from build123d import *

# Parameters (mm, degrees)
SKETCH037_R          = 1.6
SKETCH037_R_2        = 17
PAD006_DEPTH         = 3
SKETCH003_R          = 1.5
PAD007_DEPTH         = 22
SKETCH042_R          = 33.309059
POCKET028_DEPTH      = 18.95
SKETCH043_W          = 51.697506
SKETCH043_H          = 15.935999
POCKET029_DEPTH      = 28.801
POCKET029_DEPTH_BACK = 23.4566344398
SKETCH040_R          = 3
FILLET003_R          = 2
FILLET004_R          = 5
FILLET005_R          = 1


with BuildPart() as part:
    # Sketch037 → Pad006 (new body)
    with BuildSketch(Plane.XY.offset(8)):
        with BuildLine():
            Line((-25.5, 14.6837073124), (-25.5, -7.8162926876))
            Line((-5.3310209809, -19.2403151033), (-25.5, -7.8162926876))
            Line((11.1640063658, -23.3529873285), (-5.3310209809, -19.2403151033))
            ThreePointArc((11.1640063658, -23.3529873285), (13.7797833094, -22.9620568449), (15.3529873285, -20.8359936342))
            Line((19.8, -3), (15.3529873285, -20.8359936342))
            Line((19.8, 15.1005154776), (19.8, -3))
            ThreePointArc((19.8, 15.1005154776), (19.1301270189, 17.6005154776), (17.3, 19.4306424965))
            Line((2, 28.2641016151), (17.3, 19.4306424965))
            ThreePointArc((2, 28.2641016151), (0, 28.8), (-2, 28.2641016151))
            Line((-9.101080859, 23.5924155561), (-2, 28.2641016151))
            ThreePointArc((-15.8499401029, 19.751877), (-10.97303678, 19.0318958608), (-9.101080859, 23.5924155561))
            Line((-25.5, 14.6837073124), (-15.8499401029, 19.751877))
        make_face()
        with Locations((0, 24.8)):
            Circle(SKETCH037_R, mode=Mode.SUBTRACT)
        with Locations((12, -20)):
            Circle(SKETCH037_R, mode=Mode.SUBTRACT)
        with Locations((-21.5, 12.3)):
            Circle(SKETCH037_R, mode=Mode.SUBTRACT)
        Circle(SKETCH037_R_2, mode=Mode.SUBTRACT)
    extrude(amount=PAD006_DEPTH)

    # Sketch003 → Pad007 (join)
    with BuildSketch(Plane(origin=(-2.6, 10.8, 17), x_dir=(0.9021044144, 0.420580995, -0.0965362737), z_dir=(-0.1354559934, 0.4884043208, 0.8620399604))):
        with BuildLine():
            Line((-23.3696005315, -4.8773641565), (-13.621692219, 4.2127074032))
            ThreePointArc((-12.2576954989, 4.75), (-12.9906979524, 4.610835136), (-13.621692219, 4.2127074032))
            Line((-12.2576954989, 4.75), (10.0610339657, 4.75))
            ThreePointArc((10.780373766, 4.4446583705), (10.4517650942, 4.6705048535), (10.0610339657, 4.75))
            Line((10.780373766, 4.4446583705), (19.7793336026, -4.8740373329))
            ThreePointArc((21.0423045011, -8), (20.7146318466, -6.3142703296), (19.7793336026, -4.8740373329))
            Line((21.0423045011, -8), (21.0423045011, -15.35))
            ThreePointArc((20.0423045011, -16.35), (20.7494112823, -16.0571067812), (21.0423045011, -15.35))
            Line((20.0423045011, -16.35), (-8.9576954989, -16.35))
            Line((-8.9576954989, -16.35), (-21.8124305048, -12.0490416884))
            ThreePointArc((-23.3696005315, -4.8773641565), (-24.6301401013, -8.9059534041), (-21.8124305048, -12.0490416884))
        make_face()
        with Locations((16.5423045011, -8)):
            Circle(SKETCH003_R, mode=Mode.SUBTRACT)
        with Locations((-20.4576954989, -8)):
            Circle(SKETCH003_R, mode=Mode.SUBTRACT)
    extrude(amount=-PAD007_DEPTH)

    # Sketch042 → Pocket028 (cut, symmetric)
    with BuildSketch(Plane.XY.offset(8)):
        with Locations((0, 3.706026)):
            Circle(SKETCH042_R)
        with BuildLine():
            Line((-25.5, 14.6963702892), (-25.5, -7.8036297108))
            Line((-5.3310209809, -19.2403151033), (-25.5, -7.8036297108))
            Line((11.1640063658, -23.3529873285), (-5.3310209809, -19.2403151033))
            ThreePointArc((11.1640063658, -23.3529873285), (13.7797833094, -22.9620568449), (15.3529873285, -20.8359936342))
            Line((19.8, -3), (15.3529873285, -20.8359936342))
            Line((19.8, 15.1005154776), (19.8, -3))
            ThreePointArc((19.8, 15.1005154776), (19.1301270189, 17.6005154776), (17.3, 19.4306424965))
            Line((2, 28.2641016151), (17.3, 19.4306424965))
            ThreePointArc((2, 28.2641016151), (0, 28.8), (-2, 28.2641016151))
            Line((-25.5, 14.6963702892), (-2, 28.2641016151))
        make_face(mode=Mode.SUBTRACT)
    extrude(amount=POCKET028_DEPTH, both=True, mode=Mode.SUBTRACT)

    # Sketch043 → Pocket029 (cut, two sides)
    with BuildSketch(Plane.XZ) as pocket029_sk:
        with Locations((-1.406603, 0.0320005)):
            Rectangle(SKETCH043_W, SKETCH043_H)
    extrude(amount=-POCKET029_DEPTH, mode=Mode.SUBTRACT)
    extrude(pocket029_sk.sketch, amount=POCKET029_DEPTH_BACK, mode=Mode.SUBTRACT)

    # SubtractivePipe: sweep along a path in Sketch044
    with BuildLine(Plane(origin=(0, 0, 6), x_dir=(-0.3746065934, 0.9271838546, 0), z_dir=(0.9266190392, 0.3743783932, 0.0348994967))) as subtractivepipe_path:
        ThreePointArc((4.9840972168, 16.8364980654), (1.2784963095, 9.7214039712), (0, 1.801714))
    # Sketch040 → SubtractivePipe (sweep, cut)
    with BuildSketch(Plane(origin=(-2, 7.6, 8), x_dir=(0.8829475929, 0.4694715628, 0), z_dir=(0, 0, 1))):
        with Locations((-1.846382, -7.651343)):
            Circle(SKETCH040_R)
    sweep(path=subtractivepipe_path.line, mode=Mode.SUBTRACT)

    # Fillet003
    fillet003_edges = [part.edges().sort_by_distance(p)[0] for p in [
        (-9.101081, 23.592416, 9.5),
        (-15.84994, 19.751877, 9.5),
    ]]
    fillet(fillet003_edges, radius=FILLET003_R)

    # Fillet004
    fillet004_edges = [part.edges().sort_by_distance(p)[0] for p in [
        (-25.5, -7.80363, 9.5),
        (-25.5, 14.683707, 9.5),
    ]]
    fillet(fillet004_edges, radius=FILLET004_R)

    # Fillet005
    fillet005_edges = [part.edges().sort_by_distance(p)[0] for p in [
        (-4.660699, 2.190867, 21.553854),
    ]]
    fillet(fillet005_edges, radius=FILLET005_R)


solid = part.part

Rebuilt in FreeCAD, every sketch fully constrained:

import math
import FreeCAD as App
import Part
import Sketcher

V = App.Vector
Q = App.Units.Quantity


def edges_at(feature, points):
    """Names of the edges that pass closest to the given points."""
    edges = feature.Shape.Edges
    near = lambda p: min(range(len(edges)), key=lambda i: edges[i].distToShape(Part.Vertex(*p))[0])
    return sorted({f"Edge{near(p) + 1}" for p in points})

doc = App.newDocument("Part")
params = doc.addObject("Spreadsheet::Sheet", "Params")
for row, (alias, value) in enumerate([
    ("sketch1_diameter", "34 mm"),
    ("sketch1_radius", "5 mm"),
    ("sketch1_radius2", "4 mm"),
    ("sketch1_diameter2", "3.2 mm"),
    ("sketch1_length", "17 mm"),
    ("pad1_length", "3 mm"),
    ("sketch2_diameter", "3 mm"),
    ("sketch2_radius", "1 mm"),
    ("sketch2_radius2", "2 mm"),
    ("sketch2_radius3", "4.5 mm"),
    ("sketch2_width", "29 mm"),
    ("pad2_length", "22 mm"),
    ("sketch3_radius", "4 mm"),
    ("sketch3_radius2", "5 mm"),
    ("sketch3_length", "17 mm"),
    ("sketch3_height", "22.5 mm"),
    ("pocket1_length", "37.9 mm"),
    ("sketch5_diameter", "6 mm"),
    ("fillet_radius", "2 mm"),
    ("fillet2_radius", "5 mm"),
    ("fillet3_radius", "1 mm"),
], start=1):
    params.set(f"A{row}", alias)
    params.set(f"B{row}", "=" + value)
    params.setAlias(f"B{row}", alias)

body = doc.addObject("PartDesign::Body", "Body")

# Sketch on XY plane
sketch1 = body.newObject("Sketcher::SketchObject", "Sketch")
sketch1.AttachmentSupport = (doc.getObject("XY_Plane"), [""])
sketch1.MapMode = "FlatFace"
sketch1.AttachmentOffset = App.Placement(V(0, 0, 8), App.Rotation())
sketch1.addGeometry(Part.LineSegment(V(-25.5, 14.7, 0), V(-25.5, -7.8, 0)), False)
sketch1.addGeometry(Part.LineSegment(V(-25.5, -7.8, 0), V(-5.3, -19.2, 0)), False)
sketch1.addGeometry(Part.LineSegment(V(-5.3, -19.2, 0), V(11.2, -23.4, 0)), False)
sketch1.addGeometry(Part.ArcOfCircle(Part.Circle(V(12, -20, 0), V(0, 0, 1), 3.5), math.radians(-104), math.radians(-14)), False)
sketch1.addGeometry(Part.LineSegment(V(15.4, -20.8, 0), V(19.8, -3, 0)), False)
sketch1.addGeometry(Part.LineSegment(V(19.8, -3, 0), V(19.8, 15.1, 0)), False)
sketch1.addGeometry(Part.ArcOfCircle(Part.Circle(V(14.8, 15.1, 0), V(0, 0, 1), 5), math.radians(0), math.radians(60)), False)
sketch1.addGeometry(Part.LineSegment(V(17.3, 19.4, 0), V(2, 28.3, 0)), False)
sketch1.addGeometry(Part.ArcOfCircle(Part.Circle(V(0, 24.8, 0), V(0, 0, 1), 4), math.radians(60), math.radians(120)), False)
sketch1.addGeometry(Part.LineSegment(V(-2, 28.3, 0), V(-9.1, 23.6, 0)), False)
sketch1.addGeometry(Part.ArcOfCircle(Part.Circle(V(-13, 22.5, 0), V(0, 0, 1), 4), math.radians(-136), math.radians(16)), False)
sketch1.addGeometry(Part.LineSegment(V(-15.8, 19.8, 0), V(-25.5, 14.7, 0)), False)
sketch1.addGeometry(Part.Circle(V(12, -20, 0), V(0, 0, 1), 1.6), False)
sketch1.addGeometry(Part.Circle(V(0, 0, 0), V(0, 0, 1), 17), False)
sketch1.addGeometry(Part.Circle(V(-21.5, 12.3, 0), V(0, 0, 1), 1.6), False)
sketch1.addGeometry(Part.Circle(V(0, 24.8, 0), V(0, 0, 1), 1.6), False)
sketch1.addConstraint(Sketcher.Constraint("Coincident", 0, 2, 1, 1))
sketch1.addConstraint(Sketcher.Constraint("Coincident", 1, 2, 2, 1))
sketch1.addConstraint(Sketcher.Constraint("Tangent", 2, 2, 3, 1))
sketch1.addConstraint(Sketcher.Constraint("Tangent", 3, 2, 4, 1))
sketch1.addConstraint(Sketcher.Constraint("Coincident", 4, 2, 5, 1))
sketch1.addConstraint(Sketcher.Constraint("Tangent", 5, 2, 6, 1))
sketch1.addConstraint(Sketcher.Constraint("Tangent", 6, 2, 7, 1))
sketch1.addConstraint(Sketcher.Constraint("Tangent", 7, 2, 8, 1))
sketch1.addConstraint(Sketcher.Constraint("Coincident", 8, 2, 9, 1))
sketch1.addConstraint(Sketcher.Constraint("Coincident", 9, 2, 10, 2))
sketch1.addConstraint(Sketcher.Constraint("Coincident", 10, 1, 11, 1))
sketch1.addConstraint(Sketcher.Constraint("Coincident", 11, 2, 0, 1))
sketch1.addConstraint(Sketcher.Constraint("Vertical", 0))
sketch1.addConstraint(Sketcher.Constraint("Vertical", 5))
sketch1.addConstraint(Sketcher.Constraint("Coincident", 13, 3, -1, 1))
sketch1.addConstraint(Sketcher.Constraint("Coincident", 12, 3, 3, 3))
sketch1.addConstraint(Sketcher.Constraint("Coincident", 15, 3, 8, 3))
sketch1.addConstraint(Sketcher.Constraint("Equal", 8, 10))
sketch1.addConstraint(Sketcher.Constraint("Equal", 12, 14))
sketch1.addConstraint(Sketcher.Constraint("Equal", 14, 15))
sketch1.addConstraint(Sketcher.Constraint("Symmetric", 7, 2, 8, 2, -2))
sketch1.addConstraint(Sketcher.Constraint("Perpendicular", 2, 4))
sketch1.addConstraint(Sketcher.Constraint("Diameter", 13, Q("34 mm")))
sketch1.addConstraint(Sketcher.Constraint("Radius", 6, Q("5 mm")))
sketch1.addConstraint(Sketcher.Constraint("Radius", 8, Q("4 mm")))
sketch1.addConstraint(Sketcher.Constraint("Diameter", 12, Q("3.2 mm")))
sketch1.addConstraint(Sketcher.Constraint("Angle", 2, Q("-14 deg")))
sketch1.addConstraint(Sketcher.Constraint("Angle", 7, Q("150 deg")))
sketch1.addConstraint(Sketcher.Constraint("Distance", 2, Q("17 mm")))
sketch1.addConstraint(Sketcher.Constraint("DistanceY", 0, 2, 0, 1, Q("22.5 mm")))
sketch1.addConstraint(Sketcher.Constraint("DistanceX", -1, 1, 3, 3, Q("12 mm")))
sketch1.addConstraint(Sketcher.Constraint("DistanceY", 3, 3, -1, 1, Q("20 mm")))
sketch1.addConstraint(Sketcher.Constraint("DistanceY", 4, 2, -1, 1, Q("3 mm")))
sketch1.addConstraint(Sketcher.Constraint("DistanceX", 0, 2, 14, 3, Q("4 mm")))
sketch1.addConstraint(Sketcher.Constraint("Distance", 9, Q("8.5 mm")))
sketch1.addConstraint(Sketcher.Constraint("Distance", 11, Q("10.9 mm")))
sketch1.addConstraint(Sketcher.Constraint("DistanceX", -1, 1, 6, 3, Q("14.8 mm")))
sketch1.addConstraint(Sketcher.Constraint("DistanceY", -1, 1, 8, 3, Q("24.8 mm")))
sketch1.addConstraint(Sketcher.Constraint("DistanceX", 14, 3, -1, 1, Q("21.5 mm")))
sketch1.addConstraint(Sketcher.Constraint("DistanceY", -1, 1, 14, 3, Q("12.3 mm")))
sketch1.addConstraint(Sketcher.Constraint("DistanceY", 10, 3, 7, 2, Q("5.755699 mm")))
sketch1.addConstraint(Sketcher.Constraint("DistanceX", 9, 2, -1, 1, Q("9.101081 mm")))
sketch1.addConstraint(Sketcher.Constraint("DistanceX", 10, 1, -1, 1, Q("15.84994 mm")))
sketch1.setExpression("Constraints[22]", "Params.sketch1_diameter")
sketch1.setExpression("Constraints[23]", "Params.sketch1_radius")
sketch1.setExpression("Constraints[24]", "Params.sketch1_radius2")
sketch1.setExpression("Constraints[25]", "Params.sketch1_diameter2")
sketch1.setExpression("Constraints[28]", "Params.sketch1_length")
pad1 = body.newObject("PartDesign::Pad", "Pad")
pad1.Profile = sketch1
pad1.setExpression("Length", "Params.pad1_length")

# Sketch on an angled plane
sketch2 = body.newObject("Sketcher::SketchObject", "Sketch001")
sketch2.Placement = App.Placement(V(-2.6, 10.8, 17), App.Rotation(V(0.902104414, 0.420580995, -0.096536274), V(-0.409706357, 0.764573636, -0.49756191), V(-0.135455993, 0.488404321, 0.86203996), "ZXY"))
sketch2.addGeometry(Part.LineSegment(V(-13.6, 4.2, 0), V(-23.4, -4.9, 0)), False)
sketch2.addGeometry(Part.ArcOfCircle(Part.Circle(V(-20.5, -8, 0), V(0, 0, 1), 4.3), math.radians(133), math.radians(252)), False)
sketch2.addGeometry(Part.LineSegment(V(-21.8, -12, 0), V(-9, -16.3, 0)), False)
sketch2.addGeometry(Part.LineSegment(V(-9, -16.3, 0), V(20, -16.3, 0)), False)
sketch2.addGeometry(Part.ArcOfCircle(Part.Circle(V(20, -15.3, 0), V(0, 0, 1), 1), math.radians(-90), math.radians(0)), False)
sketch2.addGeometry(Part.LineSegment(V(21, -15.3, 0), V(21, -8, 0)), False)
sketch2.addGeometry(Part.ArcOfCircle(Part.Circle(V(16.5, -8, 0), V(0, 0, 1), 4.5), math.radians(0), math.radians(44)), False)
sketch2.addGeometry(Part.LineSegment(V(19.8, -4.9, 0), V(10.8, 4.4, 0)), False)
sketch2.addGeometry(Part.ArcOfCircle(Part.Circle(V(10.1, 3.7, 0), V(0, 0, 1), 1), math.radians(44), math.radians(90)), False)
sketch2.addGeometry(Part.LineSegment(V(10.1, 4.7, 0), V(-12.3, 4.7, 0)), False)
sketch2.addGeometry(Part.ArcOfCircle(Part.Circle(V(-12.3, 2.7, 0), V(0, 0, 1), 2), math.radians(90), math.radians(133)), False)
sketch2.addGeometry(Part.Circle(V(16.5, -8, 0), V(0, 0, 1), 1.5), False)
sketch2.addGeometry(Part.Circle(V(-20.5, -8, 0), V(0, 0, 1), 1.5), False)
sketch2.addConstraint(Sketcher.Constraint("Tangent", 0, 2, 1, 1))
sketch2.addConstraint(Sketcher.Constraint("Tangent", 1, 2, 2, 1))
sketch2.addConstraint(Sketcher.Constraint("Coincident", 2, 2, 3, 1))
sketch2.addConstraint(Sketcher.Constraint("Tangent", 3, 2, 4, 1))
sketch2.addConstraint(Sketcher.Constraint("Tangent", 4, 2, 5, 1))
sketch2.addConstraint(Sketcher.Constraint("Tangent", 5, 2, 6, 1))
sketch2.addConstraint(Sketcher.Constraint("Tangent", 6, 2, 7, 1))
sketch2.addConstraint(Sketcher.Constraint("Tangent", 7, 2, 8, 1))
sketch2.addConstraint(Sketcher.Constraint("Tangent", 8, 2, 9, 1))
sketch2.addConstraint(Sketcher.Constraint("Tangent", 9, 2, 10, 1))
sketch2.addConstraint(Sketcher.Constraint("Tangent", 10, 2, 0, 1))
sketch2.addConstraint(Sketcher.Constraint("Horizontal", 3))
sketch2.addConstraint(Sketcher.Constraint("Vertical", 5))
sketch2.addConstraint(Sketcher.Constraint("Horizontal", 9))
sketch2.addConstraint(Sketcher.Constraint("Coincident", 11, 3, 6, 3))
sketch2.addConstraint(Sketcher.Constraint("Coincident", 12, 3, 1, 3))
sketch2.addConstraint(Sketcher.Constraint("Equal", 4, 8))
sketch2.addConstraint(Sketcher.Constraint("Equal", 11, 12))
sketch2.addConstraint(Sketcher.Constraint("Horizontal", 1, 3, 6, 3))
sketch2.addConstraint(Sketcher.Constraint("Diameter", 11, Q("3 mm")))
sketch2.addConstraint(Sketcher.Constraint("Radius", 4, Q("1 mm")))
sketch2.addConstraint(Sketcher.Constraint("Radius", 10, Q("2 mm")))
sketch2.addConstraint(Sketcher.Constraint("Radius", 6, Q("4.5 mm")))
sketch2.addConstraint(Sketcher.Constraint("DistanceX", 3, 1, 3, 2, Q("29 mm")))
sketch2.addConstraint(Sketcher.Constraint("Angle", 0, Q("-137 deg")))
sketch2.addConstraint(Sketcher.Constraint("Angle", 7, Q("134 deg")))
sketch2.addConstraint(Sketcher.Constraint("DistanceY", 1, 3, -1, 1, Q("8 mm")))
sketch2.addConstraint(Sketcher.Constraint("DistanceX", 1, 3, 6, 3, Q("37 mm")))
sketch2.addConstraint(Sketcher.Constraint("DistanceY", 5, 1, 5, 2, Q("7.35 mm")))
sketch2.addConstraint(Sketcher.Constraint("DistanceY", 4, 3, 8, 3, Q("19.1 mm")))
sketch2.addConstraint(Sketcher.Constraint("DistanceX", 1, 3, 10, 3, Q("8.2 mm")))
sketch2.addConstraint(Sketcher.Constraint("DistanceX", 0, 2, -1, 1, Q("23.369601 mm")))
sketch2.setExpression("Constraints[19]", "Params.sketch2_diameter")
sketch2.setExpression("Constraints[20]", "Params.sketch2_radius")
sketch2.setExpression("Constraints[21]", "Params.sketch2_radius2")
sketch2.setExpression("Constraints[22]", "Params.sketch2_radius3")
sketch2.setExpression("Constraints[23]", "Params.sketch2_width")
pad2 = body.newObject("PartDesign::Pad", "Pad001")
pad2.Profile = sketch2
pad2.setExpression("Length", "Params.pad2_length")
pad2.Reversed = True

# Sketch on XY plane
sketch3 = body.newObject("Sketcher::SketchObject", "Sketch002")
sketch3.AttachmentSupport = (doc.getObject("XY_Plane"), [""])
sketch3.MapMode = "FlatFace"
sketch3.AttachmentOffset = App.Placement(V(0, 0, 8), App.Rotation())
sketch3.addGeometry(Part.Circle(V(0, 3.7, 0), V(0, 0, 1), 33.3), False)
sketch3.addGeometry(Part.LineSegment(V(-25.5, -7.8, 0), V(-25.5, 14.7, 0)), False)
sketch3.addGeometry(Part.LineSegment(V(-25.5, 14.7, 0), V(-2, 28.3, 0)), False)
sketch3.addGeometry(Part.ArcOfCircle(Part.Circle(V(0, 24.8, 0), V(0, 0, 1), 4), math.radians(60), math.radians(120)), False)
sketch3.addGeometry(Part.LineSegment(V(2, 28.3, 0), V(17.3, 19.4, 0)), False)
sketch3.addGeometry(Part.ArcOfCircle(Part.Circle(V(14.8, 15.1, 0), V(0, 0, 1), 5), math.radians(0), math.radians(60)), False)
sketch3.addGeometry(Part.LineSegment(V(19.8, 15.1, 0), V(19.8, -3, 0)), False)
sketch3.addGeometry(Part.LineSegment(V(19.8, -3, 0), V(15.4, -20.8, 0)), False)
sketch3.addGeometry(Part.ArcOfCircle(Part.Circle(V(12, -20, 0), V(0, 0, 1), 3.5), math.radians(-104), math.radians(-14)), False)
sketch3.addGeometry(Part.LineSegment(V(11.2, -23.4, 0), V(-5.3, -19.2, 0)), False)
sketch3.addGeometry(Part.LineSegment(V(-5.3, -19.2, 0), V(-25.5, -7.8, 0)), False)
sketch3.addConstraint(Sketcher.Constraint("Coincident", 1, 2, 2, 1))
sketch3.addConstraint(Sketcher.Constraint("Tangent", 2, 2, 3, 2))
sketch3.addConstraint(Sketcher.Constraint("Tangent", 3, 1, 4, 1))
sketch3.addConstraint(Sketcher.Constraint("Tangent", 4, 2, 5, 2))
sketch3.addConstraint(Sketcher.Constraint("Tangent", 5, 1, 6, 1))
sketch3.addConstraint(Sketcher.Constraint("Coincident", 6, 2, 7, 1))
sketch3.addConstraint(Sketcher.Constraint("Tangent", 7, 2, 8, 2))
sketch3.addConstraint(Sketcher.Constraint("Tangent", 8, 1, 9, 1))
sketch3.addConstraint(Sketcher.Constraint("Coincident", 9, 2, 10, 1))
sketch3.addConstraint(Sketcher.Constraint("Coincident", 10, 2, 1, 1))
sketch3.addConstraint(Sketcher.Constraint("Vertical", 1))
sketch3.addConstraint(Sketcher.Constraint("Vertical", 6))
sketch3.addConstraint(Sketcher.Constraint("Symmetric", 2, 2, 3, 1, -2))
sketch3.addConstraint(Sketcher.Constraint("PointOnObject", 0, 3, -2))
sketch3.addConstraint(Sketcher.Constraint("Perpendicular", 7, 9))
sketch3.addConstraint(Sketcher.Constraint("Radius", 3, Q("4 mm")))
sketch3.addConstraint(Sketcher.Constraint("Radius", 5, Q("5 mm")))
sketch3.addConstraint(Sketcher.Constraint("Angle", 2, Q("30 deg")))
sketch3.addConstraint(Sketcher.Constraint("Angle", 7, Q("-104 deg")))
sketch3.addConstraint(Sketcher.Constraint("Distance", 9, Q("17 mm")))
sketch3.addConstraint(Sketcher.Constraint("DistanceY", 1, 1, 1, 2, Q("22.5 mm")))
sketch3.addConstraint(Sketcher.Constraint("DistanceX", -1, 1, 8, 3, Q("12 mm")))
sketch3.addConstraint(Sketcher.Constraint("DistanceY", 8, 3, -1, 1, Q("20 mm")))
sketch3.addConstraint(Sketcher.Constraint("DistanceY", 6, 2, -1, 1, Q("3 mm")))
sketch3.addConstraint(Sketcher.Constraint("DistanceY", -1, 1, 3, 3, Q("24.8 mm")))
sketch3.addConstraint(Sketcher.Constraint("DistanceX", -1, 1, 5, 3, Q("14.8 mm")))
sketch3.addConstraint(Sketcher.Constraint("DistanceX", 1, 2, -1, 1, Q("25.5 mm")))
sketch3.addConstraint(Sketcher.Constraint("Diameter", 0, Q("66.618118 mm")))
sketch3.addConstraint(Sketcher.Constraint("DistanceY", 0, 3, 5, 3, Q("11.394489 mm")))
sketch3.setExpression("Constraints[15]", "Params.sketch3_radius")
sketch3.setExpression("Constraints[16]", "Params.sketch3_radius2")
sketch3.setExpression("Constraints[19]", "Params.sketch3_length")
sketch3.setExpression("Constraints[20]", "Params.sketch3_height")
pocket1 = body.newObject("PartDesign::Pocket", "Pocket")
pocket1.Profile = sketch3
pocket1.setExpression("Length", "Params.pocket1_length")
pocket1.Midplane = True

# Sketch on XZ plane
sketch4 = body.newObject("Sketcher::SketchObject", "Sketch003")
sketch4.AttachmentSupport = (doc.getObject("XZ_Plane"), [""])
sketch4.MapMode = "FlatFace"
sketch4.addGeometry(Part.LineSegment(V(-27, 8, 0), V(-27, -8, 0)), False)
sketch4.addGeometry(Part.LineSegment(V(-27, -8, 0), V(24, -8, 0)), False)
sketch4.addGeometry(Part.LineSegment(V(24, -8, 0), V(24, 8, 0)), False)
sketch4.addGeometry(Part.LineSegment(V(24, 8, 0), V(-27, 8, 0)), False)
sketch4.addConstraint(Sketcher.Constraint("Coincident", 0, 2, 1, 1))
sketch4.addConstraint(Sketcher.Constraint("Coincident", 1, 2, 2, 1))
sketch4.addConstraint(Sketcher.Constraint("Coincident", 2, 2, 3, 1))
sketch4.addConstraint(Sketcher.Constraint("Coincident", 3, 2, 0, 1))
sketch4.addConstraint(Sketcher.Constraint("Vertical", 0))
sketch4.addConstraint(Sketcher.Constraint("Horizontal", 1))
sketch4.addConstraint(Sketcher.Constraint("Vertical", 2))
sketch4.addConstraint(Sketcher.Constraint("Horizontal", 3))
sketch4.addConstraint(Sketcher.Constraint("DistanceY", -1, 1, 2, 2, Q("8 mm")))
sketch4.addConstraint(Sketcher.Constraint("DistanceY", 0, 2, 0, 1, Q("15.935999 mm")))
sketch4.addConstraint(Sketcher.Constraint("DistanceX", 1, 1, 1, 2, Q("51.697506 mm")))
sketch4.addConstraint(Sketcher.Constraint("DistanceX", -1, 1, 1, 2, Q("24.44215 mm")))
pocket2 = body.newObject("PartDesign::Pocket", "Pocket001")
pocket2.Profile = sketch4
pocket2.Type = "ThroughAll"
pocket2.Midplane = True

# Sketch on XY plane
sketch5 = body.newObject("Sketcher::SketchObject", "Sketch004")
sketch5.AttachmentSupport = (doc.getObject("XY_Plane"), [""])
sketch5.MapMode = "FlatFace"
sketch5.AttachmentOffset = App.Placement(V(0, 0, 8), App.Rotation())
sketch5.addGeometry(Part.Circle(V(0, 0, 0), V(0, 0, 1), 3), False)
sketch5.addConstraint(Sketcher.Constraint("Diameter", 0, Q("6 mm")))
sketch5.addConstraint(Sketcher.Constraint("DistanceX", 0, 3, -1, 1, Q("0.038171 mm")))
sketch5.addConstraint(Sketcher.Constraint("DistanceY", 0, 3, -1, 1, Q("0.022559 mm")))
sketch5.setExpression("Constraints[0]", "Params.sketch5_diameter")

# Sketch on an angled plane
sketch6 = body.newObject("Sketcher::SketchObject", "Sketch005")
sketch6.Placement = App.Placement(V(0.194031, 0.078394, 0.007308), App.Rotation(V(0.374606593, -0.927183855, 0), V(-0.03235825, -0.013073582, 0.999390827), V(-0.926619039, -0.374378393, -0.034899497), "ZXY"))
sketch6.addGeometry(Part.ArcOfCircle(Part.Circle(V(-25, 8, 0), V(0, 0, 1), 25), math.radians(0), math.radians(37)), False)
sketch6.addConstraint(Sketcher.Constraint("PointOnObject", 0, 1, -2))
sketch6.addConstraint(Sketcher.Constraint("Radius", 0, Q("25.168646 mm")))
sketch6.addConstraint(Sketcher.Constraint("DistanceY", -1, 1, 0, 3, Q("7.798059 mm")))
sketch6.addConstraint(Sketcher.Constraint("DistanceY", -1, 1, 0, 1, Q("7.798059 mm")))
sketch6.addConstraint(Sketcher.Constraint("DistanceX", 0, 3, 0, 2, Q("20.184549 mm")))
doc.recompute()

subtractivepipe = body.newObject("PartDesign::SubtractivePipe", "SubtractivePipe")
subtractivepipe.Profile = sketch5
subtractivepipe.Spine = (sketch6, ["Edge1"])
doc.recompute()

fillet = body.newObject("PartDesign::Fillet", "Fillet")
fillet.Base = (subtractivepipe, edges_at(subtractivepipe, [(-9.101, 23.592, 9.5), (-15.85, 19.752, 9.5)]))
fillet.setExpression("Radius", "Params.fillet_radius")
doc.recompute()

fillet2 = body.newObject("PartDesign::Fillet", "Fillet001")
fillet2.Base = (fillet, edges_at(fillet, [(-25.5, -7.804, 9.5), (-25.5, 14.684, 9.5)]))
fillet2.setExpression("Radius", "Params.fillet2_radius")
doc.recompute()

fillet3 = body.newObject("PartDesign::Fillet", "Fillet002")
fillet3.Base = (fillet2, edges_at(fillet2, [(-4.661, 2.191, 21.554)]))
fillet3.setExpression("Radius", "Params.fillet3_radius")

doc.recompute()
